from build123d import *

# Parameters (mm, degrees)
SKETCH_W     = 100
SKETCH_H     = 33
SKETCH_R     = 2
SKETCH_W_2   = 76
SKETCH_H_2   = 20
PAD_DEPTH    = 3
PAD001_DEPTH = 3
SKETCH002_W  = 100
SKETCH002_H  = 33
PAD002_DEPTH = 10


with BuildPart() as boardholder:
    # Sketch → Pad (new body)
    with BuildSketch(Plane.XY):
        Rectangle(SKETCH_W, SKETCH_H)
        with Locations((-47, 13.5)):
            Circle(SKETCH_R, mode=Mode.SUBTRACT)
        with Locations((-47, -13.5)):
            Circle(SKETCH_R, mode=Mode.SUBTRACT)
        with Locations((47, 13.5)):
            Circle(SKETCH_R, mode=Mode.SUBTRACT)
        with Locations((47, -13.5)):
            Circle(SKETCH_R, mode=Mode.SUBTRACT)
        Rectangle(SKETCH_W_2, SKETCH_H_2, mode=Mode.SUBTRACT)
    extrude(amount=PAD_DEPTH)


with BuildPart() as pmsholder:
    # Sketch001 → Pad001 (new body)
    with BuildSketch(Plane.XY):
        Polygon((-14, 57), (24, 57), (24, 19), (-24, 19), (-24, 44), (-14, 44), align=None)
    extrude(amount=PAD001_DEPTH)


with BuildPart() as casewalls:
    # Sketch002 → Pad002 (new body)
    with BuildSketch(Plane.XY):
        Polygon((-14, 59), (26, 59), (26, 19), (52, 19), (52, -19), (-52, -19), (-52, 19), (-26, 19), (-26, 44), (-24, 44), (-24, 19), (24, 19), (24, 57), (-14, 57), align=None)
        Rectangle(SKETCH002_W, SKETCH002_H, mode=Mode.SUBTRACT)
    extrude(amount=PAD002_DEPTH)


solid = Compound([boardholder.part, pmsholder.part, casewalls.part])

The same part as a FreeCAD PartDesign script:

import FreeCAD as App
import Part
import Sketcher

V = App.Vector


def add_polygon(sketch, points):
    """Adds a closed chain of lines whose ends are joined by coincident constraints."""
    first, n = sketch.GeometryCount, len(points)
    for a, b in zip(points, points[1:] + points[:1]):
        sketch.addGeometry(Part.LineSegment(App.Vector(*a, 0), App.Vector(*b, 0)), False)
    for i in range(n):
        sketch.addConstraint(Sketcher.Constraint("Coincident", first + i, 2, first + (i + 1) % n, 1))

doc = App.newDocument("Part")
body = doc.addObject("PartDesign::Body", "Body")

# Sketch on XY plane
sketch1 = body.newObject("Sketcher::SketchObject", "Sketch")
sketch1.AttachmentSupport = (doc.getObject("XY_Plane"), [""])
sketch1.MapMode = "FlatFace"
add_polygon(sketch1, [(-50, 16.5), (-50, -16.5), (50, -16.5), (50, 16.5)])  # lines 0-3
sketch1.addGeometry(Part.Circle(V(-47, -13.5, 0), V(0, 0, 1), 2), False)  # 4
sketch1.addGeometry(Part.Circle(V(47, -13.5, 0), V(0, 0, 1), 2), False)  # 5
add_polygon(sketch1, [(38, -10), (-38, -10), (-38, 10), (38, 10)])  # lines 6-9
sketch1.addGeometry(Part.Circle(V(-47, 13.5, 0), V(0, 0, 1), 2), False)  # 10
sketch1.addGeometry(Part.Circle(V(47, 13.5, 0), V(0, 0, 1), 2), False)  # 11
sketch1.addConstraint(Sketcher.Constraint("Vertical", 0))
sketch1.addConstraint(Sketcher.Constraint("Horizontal", 1))
sketch1.addConstraint(Sketcher.Constraint("Vertical", 2))
sketch1.addConstraint(Sketcher.Constraint("Horizontal", 3))
sketch1.addConstraint(Sketcher.Constraint("Horizontal", 6))
sketch1.addConstraint(Sketcher.Constraint("Vertical", 7))
sketch1.addConstraint(Sketcher.Constraint("Horizontal", 8))
sketch1.addConstraint(Sketcher.Constraint("Vertical", 9))
sketch1.addConstraint(Sketcher.Constraint("Equal", 4, 5))
sketch1.addConstraint(Sketcher.Constraint("Equal", 5, 10))
sketch1.addConstraint(Sketcher.Constraint("Equal", 10, 11))
sketch1.addConstraint(Sketcher.Constraint("Symmetric", 5, 3, 10, 3, -1, 1))
sketch1.addConstraint(Sketcher.Constraint("Symmetric", 4, 3, 11, 3, -1, 1))
sketch1.addConstraint(Sketcher.Constraint("Symmetric", 0, 2, 2, 2, -1, 1))
sketch1.addConstraint(Sketcher.Constraint("Symmetric", 6, 2, 8, 2, -1, 1))
sketch1.addConstraint(Sketcher.Constraint("Symmetric", 4, 3, 5, 3, -2))
sketch1.addConstraint(Sketcher.Constraint("Diameter", 4, 4.0))
sketch1.addConstraint(Sketcher.Constraint("DistanceX", 1, 1, 1, 2, 100.0))
sketch1.addConstraint(Sketcher.Constraint("DistanceX", 6, 2, 6, 1, 76.0))
sketch1.addConstraint(Sketcher.Constraint("DistanceY", 0, 2, 0, 1, 33.0))
sketch1.addConstraint(Sketcher.Constraint("DistanceY", 7, 1, 7, 2, 20.0))
sketch1.addConstraint(Sketcher.Constraint("DistanceX", 4, 3, -1, 1, 47.0))
sketch1.addConstraint(Sketcher.Constraint("DistanceY", 4, 3, 10, 3, 27.0))
pad1 = body.newObject("PartDesign::Pad", "Pad")
pad1.Profile = sketch1
pad1.Length = 3
body2 = doc.addObject("PartDesign::Body", "Body001")

# Sketch on XY plane
sketch2 = body2.newObject("Sketcher::SketchObject", "Sketch001")
sketch2.AttachmentSupport = (doc.getObject("XY_Plane001"), [""])
sketch2.MapMode = "FlatFace"
add_polygon(sketch2, [(24, 57), (-14, 57), (-14, 44), (-24, 44), (-24, 19), (24, 19)])  # lines 0-5
sketch2.addConstraint(Sketcher.Constraint("Horizontal", 0))
sketch2.addConstraint(Sketcher.Constraint("Vertical", 1))
sketch2.addConstraint(Sketcher.Constraint("Horizontal", 2))
sketch2.addConstraint(Sketcher.Constraint("Vertical", 3))
sketch2.addConstraint(Sketcher.Constraint("Horizontal", 4))
sketch2.addConstraint(Sketcher.Constraint("Vertical", 5))
sketch2.addConstraint(Sketcher.Constraint("Equal", 0, 5))
sketch2.addConstraint(Sketcher.Constraint("DistanceX", 0, 2, 0, 1, 38.0))
sketch2.addConstraint(Sketcher.Constraint("DistanceX", 2, 2, 2, 1, 10.0))
sketch2.addConstraint(Sketcher.Constraint("DistanceY", 1, 2, 1, 1, 13.0))
sketch2.addConstraint(Sketcher.Constraint("DistanceX", 0, 2, -1, 1, 14.0))
sketch2.addConstraint(Sketcher.Constraint("DistanceY", -1, 1, 0, 2, 57.0))
pad2 = body2.newObject("PartDesign::Pad", "Pad001")
pad2.Profile = sketch2
pad2.Length = 3
body3 = doc.addObject("PartDesign::Body", "Body002")

# Sketch on XY plane
sketch3 = body3.newObject("Sketcher::SketchObject", "Sketch002")
sketch3.AttachmentSupport = (doc.getObject("XY_Plane002"), [""])
sketch3.MapMode = "FlatFace"
add_polygon(sketch3, [(26, 59), (-14, 59), (-14, 57), (24, 57), (24, 19), (-24, 19), (-24, 44), (-26, 44), (-26, 19), (-52, 19), (-52, -19), (52, -19), (52, 19), (26, 19)])  # lines 0-13
add_polygon(sketch3, [(-50, -16.5), (-50, 16.5), (50, 16.5), (50, -16.5)])  # lines 14-17
sketch3.addConstraint(Sketcher.Constraint("Horizontal", 0))
sketch3.addConstraint(Sketcher.Constraint("Vertical", 1))
sketch3.addConstraint(Sketcher.Constraint("Horizontal", 2))
sketch3.addConstraint(Sketcher.Constraint("Vertical", 3))
sketch3.addConstraint(Sketcher.Constraint("Horizontal", 4))
sketch3.addConstraint(Sketcher.Constraint("Vertical", 5))
sketch3.addConstraint(Sketcher.Constraint("Horizontal", 6))
sketch3.addConstraint(Sketcher.Constraint("Vertical", 7))
sketch3.addConstraint(Sketcher.Constraint("Horizontal", 8))
sketch3.addConstraint(Sketcher.Constraint("Vertical", 9))
sketch3.addConstraint(Sketcher.Constraint("Horizontal", 10))
sketch3.addConstraint(Sketcher.Constraint("Vertical", 11))
sketch3.addConstraint(Sketcher.Constraint("Horizontal", 12))
sketch3.addConstraint(Sketcher.Constraint("Vertical", 13))
sketch3.addConstraint(Sketcher.Constraint("Vertical", 14))
sketch3.addConstraint(Sketcher.Constraint("Horizontal", 15))
sketch3.addConstraint(Sketcher.Constraint("Vertical", 16))
sketch3.addConstraint(Sketcher.Constraint("Horizontal", 17))
sketch3.addConstraint(Sketcher.Constraint("Symmetric", 8, 2, 10, 2, -1, 1))
sketch3.addConstraint(Sketcher.Constraint("Symmetric", 14, 2, 16, 2, -1, 1))
sketch3.addConstraint(Sketcher.Constraint("Symmetric", 7, 2, 12, 2, -2))
sketch3.addConstraint(Sketcher.Constraint("Horizontal", 4, 2, 7, 2))
sketch3.addConstraint(Sketcher.Constraint("Equal", 6, 1))
sketch3.addConstraint(Sketcher.Constraint("Equal", 2, 3))
sketch3.addConstraint(Sketcher.Constraint("Equal", 3, 9))
sketch3.addConstraint(Sketcher.Constraint("Equal", 0, 13))
sketch3.addConstraint(Sketcher.Constraint("DistanceX", 0, 2, 0, 1, 40.0))
sketch3.addConstraint(Sketcher.Constraint("DistanceX", 2, 1, 2, 2, 38.0))
sketch3.addConstraint(Sketcher.Constraint("DistanceX", 4, 2, 4, 1, 48.0))
sketch3.addConstraint(Sketcher.Constraint("DistanceX", 8, 2, 8, 1, 26.0))
sketch3.addConstraint(Sketcher.Constraint("DistanceX", 15, 1, 15, 2, 100.0))
sketch3.addConstraint(Sketcher.Constraint("DistanceY", 5, 1, 5, 2, 25.0))
sketch3.addConstraint(Sketcher.Constraint("DistanceY", 14, 1, 14, 2, 33.0))
pad3 = body3.newObject("PartDesign::Pad", "Pad002")
pad3.Profile = sketch3
pad3.Length = 10

doc.recompute()
